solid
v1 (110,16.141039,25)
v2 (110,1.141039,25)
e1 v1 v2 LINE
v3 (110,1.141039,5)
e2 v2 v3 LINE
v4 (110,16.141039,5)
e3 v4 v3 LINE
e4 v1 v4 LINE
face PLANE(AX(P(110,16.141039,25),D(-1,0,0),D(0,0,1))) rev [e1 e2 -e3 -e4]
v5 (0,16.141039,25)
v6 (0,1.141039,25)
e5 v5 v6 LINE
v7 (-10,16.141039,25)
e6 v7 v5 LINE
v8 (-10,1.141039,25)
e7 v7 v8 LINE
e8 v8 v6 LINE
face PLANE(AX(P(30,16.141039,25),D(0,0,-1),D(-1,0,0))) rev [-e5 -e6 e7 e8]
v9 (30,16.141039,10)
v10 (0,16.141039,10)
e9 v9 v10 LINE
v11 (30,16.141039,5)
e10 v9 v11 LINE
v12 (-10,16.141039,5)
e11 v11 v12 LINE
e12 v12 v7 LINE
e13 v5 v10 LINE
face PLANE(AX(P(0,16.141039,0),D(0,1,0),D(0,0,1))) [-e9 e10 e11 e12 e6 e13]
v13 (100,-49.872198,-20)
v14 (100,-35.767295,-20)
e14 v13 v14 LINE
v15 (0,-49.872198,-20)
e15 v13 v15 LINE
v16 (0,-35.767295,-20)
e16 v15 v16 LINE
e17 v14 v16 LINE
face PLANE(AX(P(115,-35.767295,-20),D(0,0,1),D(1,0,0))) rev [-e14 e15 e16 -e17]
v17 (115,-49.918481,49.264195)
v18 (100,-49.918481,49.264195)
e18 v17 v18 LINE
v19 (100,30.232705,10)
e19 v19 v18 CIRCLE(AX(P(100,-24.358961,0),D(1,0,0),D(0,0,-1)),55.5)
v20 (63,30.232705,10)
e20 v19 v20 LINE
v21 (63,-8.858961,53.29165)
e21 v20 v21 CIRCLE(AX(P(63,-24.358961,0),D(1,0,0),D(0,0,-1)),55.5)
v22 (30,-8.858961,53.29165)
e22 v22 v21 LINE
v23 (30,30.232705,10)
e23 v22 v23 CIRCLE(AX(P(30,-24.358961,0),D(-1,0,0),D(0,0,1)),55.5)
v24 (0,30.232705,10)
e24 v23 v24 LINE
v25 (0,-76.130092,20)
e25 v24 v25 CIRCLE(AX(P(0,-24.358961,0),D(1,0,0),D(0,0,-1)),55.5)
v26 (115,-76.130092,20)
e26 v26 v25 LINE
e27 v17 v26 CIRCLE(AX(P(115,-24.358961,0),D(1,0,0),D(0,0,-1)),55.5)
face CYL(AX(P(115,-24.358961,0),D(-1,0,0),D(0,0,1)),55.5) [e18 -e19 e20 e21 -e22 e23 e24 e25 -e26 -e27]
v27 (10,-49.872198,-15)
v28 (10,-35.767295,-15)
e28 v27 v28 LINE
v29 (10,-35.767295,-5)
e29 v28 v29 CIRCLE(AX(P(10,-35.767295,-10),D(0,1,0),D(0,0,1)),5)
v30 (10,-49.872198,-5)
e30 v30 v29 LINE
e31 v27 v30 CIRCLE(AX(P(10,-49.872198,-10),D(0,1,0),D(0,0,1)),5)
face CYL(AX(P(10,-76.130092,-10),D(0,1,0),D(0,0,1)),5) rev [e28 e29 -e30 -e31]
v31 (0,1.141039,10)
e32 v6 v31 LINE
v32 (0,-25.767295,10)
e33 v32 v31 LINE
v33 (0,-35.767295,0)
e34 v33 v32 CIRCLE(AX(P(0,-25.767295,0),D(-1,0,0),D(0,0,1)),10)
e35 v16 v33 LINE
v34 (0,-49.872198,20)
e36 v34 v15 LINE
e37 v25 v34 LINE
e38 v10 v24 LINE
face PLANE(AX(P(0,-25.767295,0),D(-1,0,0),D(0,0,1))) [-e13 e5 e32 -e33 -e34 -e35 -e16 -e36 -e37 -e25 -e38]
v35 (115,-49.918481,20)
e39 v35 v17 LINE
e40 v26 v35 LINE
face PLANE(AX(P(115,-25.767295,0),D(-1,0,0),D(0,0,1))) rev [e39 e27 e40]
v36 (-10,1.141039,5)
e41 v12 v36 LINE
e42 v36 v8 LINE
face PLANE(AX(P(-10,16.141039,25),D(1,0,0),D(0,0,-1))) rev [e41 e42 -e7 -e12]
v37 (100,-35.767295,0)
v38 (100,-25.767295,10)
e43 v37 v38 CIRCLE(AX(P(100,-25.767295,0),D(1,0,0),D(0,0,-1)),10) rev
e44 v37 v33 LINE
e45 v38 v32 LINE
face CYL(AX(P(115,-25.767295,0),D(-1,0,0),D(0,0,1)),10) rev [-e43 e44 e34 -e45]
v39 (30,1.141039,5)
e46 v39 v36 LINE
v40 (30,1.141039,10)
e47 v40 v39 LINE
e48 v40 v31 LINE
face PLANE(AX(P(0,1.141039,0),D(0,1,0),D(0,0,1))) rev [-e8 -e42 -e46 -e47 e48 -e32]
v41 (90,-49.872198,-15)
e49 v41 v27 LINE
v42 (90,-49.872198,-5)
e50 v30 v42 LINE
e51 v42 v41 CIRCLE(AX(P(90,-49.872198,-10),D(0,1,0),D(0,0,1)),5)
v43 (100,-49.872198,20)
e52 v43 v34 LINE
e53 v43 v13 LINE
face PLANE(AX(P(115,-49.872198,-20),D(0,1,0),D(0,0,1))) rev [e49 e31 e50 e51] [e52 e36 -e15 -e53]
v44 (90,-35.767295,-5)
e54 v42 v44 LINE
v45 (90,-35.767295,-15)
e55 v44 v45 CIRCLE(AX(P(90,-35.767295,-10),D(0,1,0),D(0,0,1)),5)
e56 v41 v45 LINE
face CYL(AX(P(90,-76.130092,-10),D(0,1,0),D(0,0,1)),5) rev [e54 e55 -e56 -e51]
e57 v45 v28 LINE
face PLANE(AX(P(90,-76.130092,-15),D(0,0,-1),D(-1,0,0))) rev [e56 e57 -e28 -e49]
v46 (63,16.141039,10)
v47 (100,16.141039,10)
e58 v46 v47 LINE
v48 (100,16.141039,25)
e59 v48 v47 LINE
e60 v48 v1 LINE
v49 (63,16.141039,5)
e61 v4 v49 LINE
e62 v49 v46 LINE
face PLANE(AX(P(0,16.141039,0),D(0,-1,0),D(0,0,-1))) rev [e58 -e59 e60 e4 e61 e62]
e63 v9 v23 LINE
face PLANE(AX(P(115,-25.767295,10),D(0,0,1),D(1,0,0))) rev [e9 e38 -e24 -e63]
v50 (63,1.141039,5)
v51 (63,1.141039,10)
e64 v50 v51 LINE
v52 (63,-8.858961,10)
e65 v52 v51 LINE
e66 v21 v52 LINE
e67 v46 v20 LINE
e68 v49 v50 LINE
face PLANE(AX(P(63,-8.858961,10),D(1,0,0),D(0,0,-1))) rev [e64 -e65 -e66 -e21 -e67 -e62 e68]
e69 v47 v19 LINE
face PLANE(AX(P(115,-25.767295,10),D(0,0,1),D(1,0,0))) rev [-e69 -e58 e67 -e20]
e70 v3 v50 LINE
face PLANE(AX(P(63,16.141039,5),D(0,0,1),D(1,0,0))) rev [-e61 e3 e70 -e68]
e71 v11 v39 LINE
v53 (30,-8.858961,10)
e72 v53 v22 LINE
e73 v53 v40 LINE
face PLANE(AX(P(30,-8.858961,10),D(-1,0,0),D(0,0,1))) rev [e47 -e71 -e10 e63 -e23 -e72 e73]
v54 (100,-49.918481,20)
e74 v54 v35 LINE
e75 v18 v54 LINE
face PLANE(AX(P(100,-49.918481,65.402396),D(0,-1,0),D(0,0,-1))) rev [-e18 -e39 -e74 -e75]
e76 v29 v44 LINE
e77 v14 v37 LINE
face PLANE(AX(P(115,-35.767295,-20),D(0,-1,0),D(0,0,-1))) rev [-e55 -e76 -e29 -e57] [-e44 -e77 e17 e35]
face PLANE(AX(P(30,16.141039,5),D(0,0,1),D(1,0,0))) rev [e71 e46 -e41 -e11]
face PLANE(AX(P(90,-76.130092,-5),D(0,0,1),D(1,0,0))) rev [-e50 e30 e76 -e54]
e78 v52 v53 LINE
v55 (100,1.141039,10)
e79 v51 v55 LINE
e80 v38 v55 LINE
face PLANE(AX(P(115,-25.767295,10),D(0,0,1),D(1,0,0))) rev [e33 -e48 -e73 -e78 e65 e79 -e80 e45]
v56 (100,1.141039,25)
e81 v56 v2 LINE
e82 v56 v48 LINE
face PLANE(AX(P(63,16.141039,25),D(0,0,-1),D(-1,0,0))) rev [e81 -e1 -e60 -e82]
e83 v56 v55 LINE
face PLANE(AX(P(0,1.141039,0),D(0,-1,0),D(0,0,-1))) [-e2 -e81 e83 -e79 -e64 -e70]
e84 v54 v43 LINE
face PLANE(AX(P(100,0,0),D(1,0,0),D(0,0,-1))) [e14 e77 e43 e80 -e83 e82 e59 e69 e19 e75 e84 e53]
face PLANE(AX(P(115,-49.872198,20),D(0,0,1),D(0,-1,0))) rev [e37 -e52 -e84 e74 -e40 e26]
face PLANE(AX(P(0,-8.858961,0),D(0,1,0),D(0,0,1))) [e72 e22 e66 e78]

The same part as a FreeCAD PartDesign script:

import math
import FreeCAD as App
import Part
import Sketcher
from FreeCAD import Vector

doc = App.newDocument("Part")
body = doc.addObject("PartDesign::Body", "Body")

sketch1 = body.newObject("Sketcher::SketchObject", "Sketch")
sketch1.AttachmentSupport = (doc.getObject("YZ_Plane"), [""])
sketch1.MapMode = "FlatFace"
sketch1.addGeometry([
    Part.LineSegment(Vector(-49.872198, -20, 0), Vector(-35.767295, -20, 0)),
    Part.LineSegment(Vector(-35.767295, -20, 0), Vector(-35.767295, 0, 0)),
    Part.ArcOfCircle(Part.Circle(Vector(-25.767295, 0, 0), Vector(0, 0, 1), 10), math.radians(90), math.radians(180)),
    Part.LineSegment(Vector(-25.767295, 10, 0), Vector(30.232705, 10, 0)),
    Part.ArcOfCircle(Part.Circle(Vector(-24.358961, 0, 0), Vector(0, 0, 1), 55.5), math.radians(10.380255), math.radians(158.877671)),
    Part.LineSegment(Vector(-76.130092, 20, 0), Vector(-49.872198, 20, 0)),
    Part.LineSegment(Vector(-49.872198, 20, 0), Vector(-49.872198, -20, 0)),
], False)
sketch1.addConstraint([
    Sketcher.Constraint("Coincident", 0, 2, 1, 1),
    Sketcher.Constraint("Tangent", 1, 2, 2, 2),
    Sketcher.Constraint("Tangent", 2, 1, 3, 1),
    Sketcher.Constraint("Coincident", 3, 2, 4, 1),
    Sketcher.Constraint("Coincident", 4, 2, 5, 1),
    Sketcher.Constraint("Coincident", 5, 2, 6, 1),
    Sketcher.Constraint("Coincident", 6, 2, 0, 1),
    Sketcher.Constraint("Horizontal", 0),
    Sketcher.Constraint("Vertical", 1),
    Sketcher.Constraint("Horizontal", 3),
    Sketcher.Constraint("Horizontal", 5),
    Sketcher.Constraint("Vertical", 6),
    Sketcher.Constraint("PointOnObject", 2, 3, -1),
    Sketcher.Constraint("PointOnObject", 4, 3, -1),
    Sketcher.Constraint("Radius", 2, 10.0),
    Sketcher.Constraint("Radius", 4, 55.5),
    Sketcher.Constraint("DistanceX", 3, 1, 3, 2, 56.0),
    Sketcher.Constraint("DistanceY", 1, 1, 1, 2, 20.0),
    Sketcher.Constraint("DistanceY", 6, 2, 6, 1, 40.0),
    Sketcher.Constraint("DistanceX", 0, 1, 0, 2, 14.104903),
    Sketcher.Constraint("DistanceX", 4, 3, -1, 1, 24.358961),
])
pad1 = body.newObject("PartDesign::Pad", "Pad")
pad1.Profile = sketch1
pad1.Length = 115

sketch2 = body.newObject("Sketcher::SketchObject", "Sketch001")
sketch2.AttachmentSupport = (doc.getObject("YZ_Plane"), [""])
sketch2.MapMode = "FlatFace"
sketch2.AttachmentOffset = App.Placement(Vector(0, 0, 115), App.Rotation())
sketch2.addGeometry([
    Part.LineSegment(Vector(30.232705, 65.402396, 0), Vector(-49.918481, 65.402396, 0)),
    Part.LineSegment(Vector(-49.918481, 65.402396, 0), Vector(-49.918481, -45.402396, 0)),
    Part.LineSegment(Vector(-49.918481, -45.402396, 0), Vector(30.232705, -45.402396, 0)),
    Part.LineSegment(Vector(30.232705, -45.402396, 0), Vector(30.232705, 65.402396, 0)),
], False)
sketch2.addConstraint([
    Sketcher.Constraint("Coincident", 0, 2, 1, 1),
    Sketcher.Constraint("Coincident", 1, 2, 2, 1),
    Sketcher.Constraint("Coincident", 2, 2, 3, 1),
    Sketcher.Constraint("Coincident", 3, 2, 0, 1),
    Sketcher.Constraint("Horizontal", 0),
    Sketcher.Constraint("Vertical", 1),
    Sketcher.Constraint("Horizontal", 2),
    Sketcher.Constraint("Vertical", 3),
    Sketcher.Constraint("DistanceY", 1, 2, 1, 1, 110.804791),
    Sketcher.Constraint("DistanceX", 0, 2, 0, 1, 80.151186),
    Sketcher.Constraint("DistanceX", 0, 2, -1, 1, 49.918481),
    Sketcher.Constraint("DistanceY", -1, 1, 0, 2, 65.402396),
])
pocket1 = body.newObject("PartDesign::Pocket", "Pocket")
pocket1.Profile = sketch2
pocket1.Length = 15

sketch3 = body.newObject("Sketcher::SketchObject", "Sketch002")
sketch3.AttachmentSupport = (doc.getObject("XZ_Plane"), [""])
sketch3.MapMode = "FlatFace"
sketch3.AttachmentOffset = App.Placement(Vector(0, 0, -31.141039), App.Rotation())
sketch3.addGeometry([
    Part.LineSegment(Vector(30, 10, 0), Vector(30, 55.5, 0)),
    Part.LineSegment(Vector(30, 55.5, 0), Vector(63, 55.5, 0)),
    Part.LineSegment(Vector(63, 55.5, 0), Vector(63, 10, 0)),
    Part.LineSegment(Vector(63, 10, 0), Vector(30, 10, 0)),
], False)
sketch3.addConstraint([
    Sketcher.Constraint("Coincident", 0, 2, 1, 1),
    Sketcher.Constraint("Coincident", 1, 2, 2, 1),
    Sketcher.Constraint("Coincident", 2, 2, 3, 1),
    Sketcher.Constraint("Coincident", 3, 2, 0, 1),
    Sketcher.Constraint("Vertical", 0),
    Sketcher.Constraint("Horizontal", 1),
    Sketcher.Constraint("Vertical", 2),
    Sketcher.Constraint("Horizontal", 3),
    Sketcher.Constraint("DistanceX", 1, 1, 1, 2, 33.0),
    Sketcher.Constraint("DistanceY", 0, 1, 0, 2, 45.5),
    Sketcher.Constraint("DistanceX", -1, 1, 0, 2, 30.0),
    Sketcher.Constraint("DistanceY", -1, 1, 2, 2, 10.0),
])
pocket2 = body.newObject("PartDesign::Pocket", "Pocket001")
pocket2.Profile = sketch3
pocket2.Length = 40
pocket2.Reversed = True

sketch4 = body.newObject("Sketcher::SketchObject", "Sketch003")
sketch4.AttachmentSupport = (doc.getObject("XZ_Plane"), [""])
sketch4.MapMode = "FlatFace"
sketch4.AttachmentOffset = App.Placement(Vector(0, 0, 35.767295), App.Rotation())
sketch4.addGeometry([
    Part.LineSegment(Vector(10, -5, 0), Vector(90, -5, 0)),
    Part.ArcOfCircle(Part.Circle(Vector(90, -10, 0), Vector(0, 0, 1), 5), math.radians(-90), math.radians(90)),
    Part.LineSegment(Vector(90, -15, 0), Vector(10, -15, 0)),
    Part.ArcOfCircle(Part.Circle(Vector(10, -10, 0), Vector(0, 0, 1), 5), math.radians(90), math.radians(270)),
], False)
sketch4.addConstraint([
    Sketcher.Constraint("Tangent", 0, 2, 1, 2),
    Sketcher.Constraint("Tangent", 1, 1, 2, 1),
    Sketcher.Constraint("Tangent", 2, 2, 3, 2),
    Sketcher.Constraint("Tangent", 3, 1, 0, 1),
    Sketcher.Constraint("Horizontal", 0),
    Sketcher.Constraint("Horizontal", 2),
    Sketcher.Constraint("Radius", 1, 5.0),
    Sketcher.Constraint("DistanceX", 0, 1, 0, 2, 80.0),
    Sketcher.Constraint("DistanceX", -1, 1, 1, 3, 90.0),
    Sketcher.Constraint("DistanceY", 1, 3, -1, 1, 10.0),
])
pocket3 = body.newObject("PartDesign::Pocket", "Pocket002")
pocket3.Profile = sketch4
pocket3.Type = "ThroughAll"
pocket3.Reversed = True

sketch5 = body.newObject("Sketcher::SketchObject", "Sketch004")
sketch5.AttachmentSupport = (doc.getObject("XZ_Plane"), [""])
sketch5.MapMode = "FlatFace"
sketch5.AttachmentOffset = App.Placement(Vector(0, 0, -1.141039), App.Rotation())
sketch5.addGeometry([
    Part.LineSegment(Vector(63, 5, 0), Vector(63, 25, 0)),
    Part.LineSegment(Vector(63, 25, 0), Vector(110, 25, 0)),
    Part.LineSegment(Vector(110, 25, 0), Vector(110, 5, 0)),
    Part.LineSegment(Vector(110, 5, 0), Vector(63, 5, 0)),
    Part.LineSegment(Vector(-10, 5, 0), Vector(-10, 25, 0)),
    Part.LineSegment(Vector(-10, 25, 0), Vector(30, 25, 0)),
    Part.LineSegment(Vector(30, 25, 0), Vector(30, 5, 0)),
    Part.LineSegment(Vector(30, 5, 0), Vector(-10, 5, 0)),
], False)
sketch5.addConstraint([
    Sketcher.Constraint("Coincident", 0, 2, 1, 1),
    Sketcher.Constraint("Coincident", 1, 2, 2, 1),
    Sketcher.Constraint("Coincident", 2, 2, 3, 1),
    Sketcher.Constraint("Coincident", 3, 2, 0, 1),
    Sketcher.Constraint("Coincident", 4, 2, 5, 1),
    Sketcher.Constraint("Coincident", 5, 2, 6, 1),
    Sketcher.Constraint("Coincident", 6, 2, 7, 1),
    Sketcher.Constraint("Coincident", 7, 2, 4, 1),
    Sketcher.Constraint("Vertical", 0),
    Sketcher.Constraint("Horizontal", 1),
    Sketcher.Constraint("Vertical", 2),
    Sketcher.Constraint("Horizontal", 3),
    Sketcher.Constraint("Vertical", 4),
    Sketcher.Constraint("Horizontal", 5),
    Sketcher.Constraint("Vertical", 6),
    Sketcher.Constraint("Horizontal", 7),
    Sketcher.Constraint("Horizontal", 1, 2, 4, 2),
    Sketcher.Constraint("Horizontal", 3, 2, 6, 2),
    Sketcher.Constraint("DistanceX", 1, 1, 1, 2, 47.0),
    Sketcher.Constraint("DistanceX", 5, 1, 5, 2, 40.0),
    Sketcher.Constraint("DistanceY", 0, 1, 0, 2, 20.0),
    Sketcher.Constraint("DistanceX", -1, 1, 0, 2, 63.0),
    Sketcher.Constraint("DistanceY", -1, 1, 0, 2, 25.0),
    Sketcher.Constraint("DistanceX", 4, 2, -1, 1, 10.0),
])
pad2 = body.newObject("PartDesign::Pad", "Pad001")
pad2.Profile = sketch5
pad2.Length = 15
pad2.Reversed = True

doc.recompute()
